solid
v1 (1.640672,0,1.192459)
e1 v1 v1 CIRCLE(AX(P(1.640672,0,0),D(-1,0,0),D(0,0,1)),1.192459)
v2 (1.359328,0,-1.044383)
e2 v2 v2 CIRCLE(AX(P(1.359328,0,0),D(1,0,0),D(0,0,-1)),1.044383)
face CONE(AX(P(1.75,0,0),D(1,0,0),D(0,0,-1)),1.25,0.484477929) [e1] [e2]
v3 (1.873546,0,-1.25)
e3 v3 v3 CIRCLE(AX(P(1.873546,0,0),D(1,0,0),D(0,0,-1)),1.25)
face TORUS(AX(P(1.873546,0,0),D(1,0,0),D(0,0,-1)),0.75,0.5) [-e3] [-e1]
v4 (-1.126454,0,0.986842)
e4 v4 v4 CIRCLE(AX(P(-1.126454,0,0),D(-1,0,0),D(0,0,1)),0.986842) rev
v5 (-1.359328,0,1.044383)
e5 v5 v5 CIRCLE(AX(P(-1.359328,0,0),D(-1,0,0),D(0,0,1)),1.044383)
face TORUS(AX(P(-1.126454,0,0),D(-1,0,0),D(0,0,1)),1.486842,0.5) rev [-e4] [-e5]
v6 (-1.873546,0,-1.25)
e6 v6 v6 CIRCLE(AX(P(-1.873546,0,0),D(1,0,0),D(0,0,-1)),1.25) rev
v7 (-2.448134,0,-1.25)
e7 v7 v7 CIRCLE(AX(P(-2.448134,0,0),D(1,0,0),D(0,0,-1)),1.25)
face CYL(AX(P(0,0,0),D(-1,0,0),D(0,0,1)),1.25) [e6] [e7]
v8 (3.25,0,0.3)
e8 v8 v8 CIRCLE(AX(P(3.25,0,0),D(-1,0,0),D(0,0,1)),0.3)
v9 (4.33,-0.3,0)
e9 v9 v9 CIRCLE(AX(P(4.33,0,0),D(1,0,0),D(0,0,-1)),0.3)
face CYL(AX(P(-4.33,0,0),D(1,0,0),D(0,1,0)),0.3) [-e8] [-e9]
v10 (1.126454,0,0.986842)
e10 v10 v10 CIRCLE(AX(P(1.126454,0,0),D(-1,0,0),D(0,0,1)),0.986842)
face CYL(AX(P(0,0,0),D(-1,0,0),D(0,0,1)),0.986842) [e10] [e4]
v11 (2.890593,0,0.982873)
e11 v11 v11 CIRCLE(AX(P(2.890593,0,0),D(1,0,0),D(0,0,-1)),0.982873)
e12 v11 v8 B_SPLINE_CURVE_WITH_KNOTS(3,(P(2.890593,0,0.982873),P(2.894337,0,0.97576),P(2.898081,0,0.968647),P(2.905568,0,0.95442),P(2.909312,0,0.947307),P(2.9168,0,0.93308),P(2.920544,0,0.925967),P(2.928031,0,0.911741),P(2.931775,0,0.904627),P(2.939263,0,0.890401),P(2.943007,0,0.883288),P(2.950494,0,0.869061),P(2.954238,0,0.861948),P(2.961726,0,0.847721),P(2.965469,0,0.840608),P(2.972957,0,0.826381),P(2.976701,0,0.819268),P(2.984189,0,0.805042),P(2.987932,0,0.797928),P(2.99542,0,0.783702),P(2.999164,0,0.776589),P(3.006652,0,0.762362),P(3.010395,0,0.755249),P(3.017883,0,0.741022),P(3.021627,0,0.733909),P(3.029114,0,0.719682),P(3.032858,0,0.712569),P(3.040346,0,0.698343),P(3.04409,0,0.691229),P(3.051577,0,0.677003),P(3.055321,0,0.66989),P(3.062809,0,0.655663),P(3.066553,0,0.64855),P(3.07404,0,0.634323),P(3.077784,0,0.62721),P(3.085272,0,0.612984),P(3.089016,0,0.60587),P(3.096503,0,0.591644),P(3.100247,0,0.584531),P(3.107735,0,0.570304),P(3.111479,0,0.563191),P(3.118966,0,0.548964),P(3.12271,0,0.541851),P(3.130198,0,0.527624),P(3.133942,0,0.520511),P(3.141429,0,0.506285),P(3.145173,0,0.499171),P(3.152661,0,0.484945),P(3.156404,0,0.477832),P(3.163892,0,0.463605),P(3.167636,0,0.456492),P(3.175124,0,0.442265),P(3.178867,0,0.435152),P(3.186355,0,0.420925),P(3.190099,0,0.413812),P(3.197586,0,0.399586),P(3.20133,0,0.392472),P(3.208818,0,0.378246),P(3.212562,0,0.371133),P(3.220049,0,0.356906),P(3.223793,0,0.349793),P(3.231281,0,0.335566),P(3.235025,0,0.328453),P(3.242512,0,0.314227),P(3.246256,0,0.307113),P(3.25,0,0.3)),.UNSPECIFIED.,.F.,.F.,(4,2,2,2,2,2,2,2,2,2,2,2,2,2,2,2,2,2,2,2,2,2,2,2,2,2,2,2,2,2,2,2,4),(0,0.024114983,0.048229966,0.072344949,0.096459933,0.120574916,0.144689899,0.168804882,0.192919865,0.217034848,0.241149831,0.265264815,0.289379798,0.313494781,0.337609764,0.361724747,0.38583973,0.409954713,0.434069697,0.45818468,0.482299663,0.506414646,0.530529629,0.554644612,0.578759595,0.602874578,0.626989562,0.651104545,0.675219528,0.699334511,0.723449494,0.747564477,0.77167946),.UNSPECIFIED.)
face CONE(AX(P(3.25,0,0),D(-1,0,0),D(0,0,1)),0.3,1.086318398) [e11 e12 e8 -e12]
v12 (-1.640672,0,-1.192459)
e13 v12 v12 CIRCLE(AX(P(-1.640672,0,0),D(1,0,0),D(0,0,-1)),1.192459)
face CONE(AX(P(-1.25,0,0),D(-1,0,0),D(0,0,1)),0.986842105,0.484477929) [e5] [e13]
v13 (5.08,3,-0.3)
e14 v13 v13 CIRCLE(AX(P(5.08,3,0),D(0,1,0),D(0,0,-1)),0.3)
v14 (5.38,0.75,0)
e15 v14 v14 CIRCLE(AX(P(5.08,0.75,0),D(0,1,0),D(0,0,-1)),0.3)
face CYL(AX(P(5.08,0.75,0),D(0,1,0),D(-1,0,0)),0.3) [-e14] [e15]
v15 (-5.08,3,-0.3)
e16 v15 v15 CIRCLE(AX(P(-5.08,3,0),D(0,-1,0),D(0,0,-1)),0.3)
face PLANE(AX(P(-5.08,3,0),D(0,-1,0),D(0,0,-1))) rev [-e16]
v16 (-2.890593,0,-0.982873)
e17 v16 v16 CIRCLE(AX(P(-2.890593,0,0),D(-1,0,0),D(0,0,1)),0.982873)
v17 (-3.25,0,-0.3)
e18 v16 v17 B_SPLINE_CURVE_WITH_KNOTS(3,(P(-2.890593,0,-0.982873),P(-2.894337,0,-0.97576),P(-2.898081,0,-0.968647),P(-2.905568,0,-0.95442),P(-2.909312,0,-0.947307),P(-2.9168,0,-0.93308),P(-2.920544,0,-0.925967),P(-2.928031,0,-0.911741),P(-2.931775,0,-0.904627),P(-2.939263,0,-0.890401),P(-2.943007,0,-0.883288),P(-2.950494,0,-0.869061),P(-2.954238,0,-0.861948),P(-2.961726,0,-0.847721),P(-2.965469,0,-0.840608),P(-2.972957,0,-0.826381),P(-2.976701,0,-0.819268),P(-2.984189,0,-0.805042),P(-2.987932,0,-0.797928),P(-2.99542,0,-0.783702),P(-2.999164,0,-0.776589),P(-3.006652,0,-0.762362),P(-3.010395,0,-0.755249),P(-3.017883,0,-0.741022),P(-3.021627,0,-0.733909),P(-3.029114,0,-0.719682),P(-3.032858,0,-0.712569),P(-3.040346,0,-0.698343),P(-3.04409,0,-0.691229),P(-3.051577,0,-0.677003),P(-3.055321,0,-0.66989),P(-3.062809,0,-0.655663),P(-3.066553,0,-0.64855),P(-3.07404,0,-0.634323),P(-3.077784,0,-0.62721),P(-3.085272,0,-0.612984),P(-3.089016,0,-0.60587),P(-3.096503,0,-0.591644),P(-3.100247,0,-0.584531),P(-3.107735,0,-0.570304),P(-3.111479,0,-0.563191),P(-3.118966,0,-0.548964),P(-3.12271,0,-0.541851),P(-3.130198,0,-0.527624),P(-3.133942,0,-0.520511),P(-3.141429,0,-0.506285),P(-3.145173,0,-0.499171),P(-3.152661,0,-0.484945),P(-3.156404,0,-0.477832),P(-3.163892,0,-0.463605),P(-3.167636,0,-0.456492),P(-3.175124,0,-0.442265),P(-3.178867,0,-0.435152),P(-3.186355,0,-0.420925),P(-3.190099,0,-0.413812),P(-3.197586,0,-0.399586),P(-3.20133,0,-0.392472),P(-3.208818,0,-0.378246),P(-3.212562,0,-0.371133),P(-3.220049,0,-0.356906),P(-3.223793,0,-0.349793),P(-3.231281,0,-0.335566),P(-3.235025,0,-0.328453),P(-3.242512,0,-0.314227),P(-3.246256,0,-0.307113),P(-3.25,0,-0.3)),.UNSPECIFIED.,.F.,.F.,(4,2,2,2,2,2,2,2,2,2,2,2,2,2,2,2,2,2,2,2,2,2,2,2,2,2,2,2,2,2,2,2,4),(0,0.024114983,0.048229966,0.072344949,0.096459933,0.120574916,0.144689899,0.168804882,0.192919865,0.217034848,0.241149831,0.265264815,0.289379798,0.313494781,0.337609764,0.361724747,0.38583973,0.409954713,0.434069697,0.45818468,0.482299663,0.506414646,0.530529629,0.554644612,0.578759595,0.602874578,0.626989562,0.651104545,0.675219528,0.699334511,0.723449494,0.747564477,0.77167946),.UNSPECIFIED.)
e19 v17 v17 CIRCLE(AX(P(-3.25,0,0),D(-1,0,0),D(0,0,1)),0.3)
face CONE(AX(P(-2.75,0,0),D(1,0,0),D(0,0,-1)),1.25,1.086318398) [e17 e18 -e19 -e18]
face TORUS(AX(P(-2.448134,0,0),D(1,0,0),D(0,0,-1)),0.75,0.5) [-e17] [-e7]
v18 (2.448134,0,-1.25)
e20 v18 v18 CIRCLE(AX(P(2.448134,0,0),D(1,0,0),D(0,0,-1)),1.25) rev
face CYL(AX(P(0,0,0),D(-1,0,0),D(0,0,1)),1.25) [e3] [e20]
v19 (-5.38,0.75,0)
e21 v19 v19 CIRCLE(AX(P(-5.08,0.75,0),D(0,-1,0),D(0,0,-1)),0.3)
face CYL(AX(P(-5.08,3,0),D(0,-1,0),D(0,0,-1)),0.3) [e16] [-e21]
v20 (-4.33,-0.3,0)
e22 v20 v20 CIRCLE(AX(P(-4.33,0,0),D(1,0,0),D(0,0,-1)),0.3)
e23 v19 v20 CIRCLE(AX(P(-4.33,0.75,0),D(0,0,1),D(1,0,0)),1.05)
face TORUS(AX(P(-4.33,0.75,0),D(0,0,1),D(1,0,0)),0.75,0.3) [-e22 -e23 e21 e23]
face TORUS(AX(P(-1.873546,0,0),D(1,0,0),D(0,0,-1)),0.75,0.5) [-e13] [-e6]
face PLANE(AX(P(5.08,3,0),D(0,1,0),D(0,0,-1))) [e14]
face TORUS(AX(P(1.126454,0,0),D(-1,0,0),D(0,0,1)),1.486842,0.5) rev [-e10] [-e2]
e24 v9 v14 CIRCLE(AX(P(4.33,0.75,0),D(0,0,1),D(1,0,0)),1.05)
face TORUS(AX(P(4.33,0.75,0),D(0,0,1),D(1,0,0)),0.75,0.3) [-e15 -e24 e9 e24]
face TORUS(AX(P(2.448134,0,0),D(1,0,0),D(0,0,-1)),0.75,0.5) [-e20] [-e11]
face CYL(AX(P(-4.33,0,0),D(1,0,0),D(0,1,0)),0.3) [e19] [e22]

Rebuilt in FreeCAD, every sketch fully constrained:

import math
import FreeCAD as App
import Part
import Sketcher

V = App.Vector


def edges_at(feature, points):
    """Names of the edges that pass closest to the given points."""
    edges = feature.Shape.Edges
    near = lambda p: min(range(len(edges)), key=lambda i: edges[i].distToShape(Part.Vertex(*p))[0])
    return sorted({f"Edge{near(p) + 1}" for p in points})

doc = App.newDocument("Part")
body = doc.addObject("PartDesign::Body", "Body")

# Sketch on XY plane
sketch1 = doc.addObject("Sketcher::SketchObject", "Sketch")
body.addObject(sketch1)
sketch1.AttachmentSupport = (doc.XY_Plane, [""])
sketch1.MapMode = "FlatFace"
sketch1.addGeometry(Part.LineSegment(V(3.25, 0, 0), V(3.25, 0.3, 0)), False)
sketch1.addGeometry(Part.LineSegment(V(3.25, 0.3, 0), V(2.75, 1.25, 0)), False)
sketch1.addGeometry(Part.LineSegment(V(2.75, 1.25, 0), V(1.75, 1.25, 0)), False)
sketch1.addGeometry(Part.LineSegment(V(1.75, 1.25, 0), V(1.25, 0.99, 0)), False)
sketch1.addGeometry(Part.LineSegment(V(1.25, 0.99, 0), V(-1.25, 0.99, 0)), False)
sketch1.addGeometry(Part.LineSegment(V(-1.25, 0.99, 0), V(-1.75, 1.25, 0)), False)
sketch1.addGeometry(Part.LineSegment(V(-1.75, 1.25, 0), V(-2.75, 1.25, 0)), False)
sketch1.addGeometry(Part.LineSegment(V(-2.75, 1.25, 0), V(-3.25, 0.3, 0)), False)
sketch1.addGeometry(Part.LineSegment(V(-3.25, 0.3, 0), V(-3.25, 0, 0)), False)
sketch1.addGeometry(Part.LineSegment(V(-3.25, 0, 0), V(3.25, 0, 0)), False)
sketch1.addConstraint(Sketcher.Constraint("Coincident", 0, 2, 1, 1))
sketch1.addConstraint(Sketcher.Constraint("Coincident", 1, 2, 2, 1))
sketch1.addConstraint(Sketcher.Constraint("Coincident", 2, 2, 3, 1))
sketch1.addConstraint(Sketcher.Constraint("Coincident", 3, 2, 4, 1))
sketch1.addConstraint(Sketcher.Constraint("Coincident", 4, 2, 5, 1))
sketch1.addConstraint(Sketcher.Constraint("Coincident", 5, 2, 6, 1))
sketch1.addConstraint(Sketcher.Constraint("Coincident", 6, 2, 7, 1))
sketch1.addConstraint(Sketcher.Constraint("Coincident", 7, 2, 8, 1))
sketch1.addConstraint(Sketcher.Constraint("Coincident", 8, 2, 9, 1))
sketch1.addConstraint(Sketcher.Constraint("Coincident", 9, 2, 0, 1))
sketch1.addConstraint(Sketcher.Constraint("Vertical", 0))
sketch1.addConstraint(Sketcher.Constraint("Horizontal", 2))
sketch1.addConstraint(Sketcher.Constraint("Horizontal", 4))
sketch1.addConstraint(Sketcher.Constraint("Horizontal", 6))
sketch1.addConstraint(Sketcher.Constraint("Vertical", 8))
sketch1.addConstraint(Sketcher.Constraint("Horizontal", 9))
sketch1.addConstraint(Sketcher.Constraint("Symmetric", 8, 2, 9, 2, -1, 1))
sketch1.addConstraint(Sketcher.Constraint("Symmetric", 2, 2, 5, 2, -2))
sketch1.addConstraint(Sketcher.Constraint("Perpendicular", 1, 3))
sketch1.addConstraint(Sketcher.Constraint("Perpendicular", 5, 7))
sketch1.addConstraint(Sketcher.Constraint("Horizontal", 0, 2, 7, 2))
sketch1.addConstraint(Sketcher.Constraint("Equal", 2, 6))
sketch1.addConstraint(Sketcher.Constraint("DistanceX", 2, 2, 2, 1, 1.0))
sketch1.addConstraint(Sketcher.Constraint("DistanceX", 4, 2, 4, 1, 2.5))
sketch1.addConstraint(Sketcher.Constraint("DistanceX", 9, 1, 9, 2, 6.5))
sketch1.addConstraint(Sketcher.Constraint("DistanceY", 0, 1, 0, 2, 0.3))
sketch1.addConstraint(Sketcher.Constraint("DistanceX", 4, 2, 2, 2, 3.0))
sketch1.addConstraint(Sketcher.Constraint("DistanceY", -1, 1, 1, 2, 1.25))
revolution = doc.addObject("PartDesign::Revolution", "Revolution")
body.addObject(revolution)
revolution.Profile = sketch1
revolution.ReferenceAxis = (sketch1, ["H_Axis"])
revolution.Angle = 360
doc.recompute()

fillet = doc.addObject("PartDesign::Fillet", "Fillet")
body.addObject(fillet)
fillet.Base = (revolution, edges_at(revolution, [
    (1.75, 0, -1.25),
    (2.75, 0, -1.25),
    (-2.75, 0, -1.25),
    (-1.75, 0, -1.25),
    (-1.25, 0, -0.987),
    (1.25, 0, -0.987),
]))
fillet.Radius = 0.5

# Sketch on YZ plane
sketch2 = doc.addObject("Sketcher::SketchObject", "Sketch001")
body.addObject(sketch2)
sketch2.AttachmentSupport = (doc.YZ_Plane, [""])
sketch2.MapMode = "FlatFace"
sketch2.AttachmentOffset = App.Placement(V(0, 0, 3.25), App.Rotation())
sketch2.addGeometry(Part.Circle(V(0, 0, 0), V(0, 0, 1), 0.3), False)
sketch2.addConstraint(Sketcher.Constraint("Coincident", 0, 3, -1, 1))
sketch2.addConstraint(Sketcher.Constraint("Diameter", 0, 0.6))

# Sketch on XY plane
sketch3 = doc.addObject("Sketcher::SketchObject", "Sketch002")
body.addObject(sketch3)
sketch3.AttachmentSupport = (doc.XY_Plane, [""])
sketch3.MapMode = "FlatFace"
sketch3.addGeometry(Part.LineSegment(V(5.1, 3, 0), V(5.1, 0.8, 0)), False)
sketch3.addGeometry(Part.ArcOfCircle(Part.Circle(V(4.3, 0.8, 0), V(0, 0, 1), 0.8), math.radians(-90), math.radians(0)), False)
sketch3.addGeometry(Part.LineSegment(V(4.3, 0, 0), V(-4.3, 0, 0)), False)
sketch3.addGeometry(Part.ArcOfCircle(Part.Circle(V(-4.3, 0.8, 0), V(0, 0, 1), 0.8), math.radians(180), math.radians(270)), False)
sketch3.addGeometry(Part.LineSegment(V(-5.1, 0.8, 0), V(-5.1, 3, 0)), False)
sketch3.addConstraint(Sketcher.Constraint("Tangent", 0, 2, 1, 2))
sketch3.addConstraint(Sketcher.Constraint("Tangent", 1, 1, 2, 1))
sketch3.addConstraint(Sketcher.Constraint("Tangent", 2, 2, 3, 2))
sketch3.addConstraint(Sketcher.Constraint("Tangent", 3, 1, 4, 1))
sketch3.addConstraint(Sketcher.Constraint("Vertical", 0))
sketch3.addConstraint(Sketcher.Constraint("Horizontal", 2))
sketch3.addConstraint(Sketcher.Constraint("Vertical", 4))
sketch3.addConstraint(Sketcher.Constraint("Equal", 1, 3))
sketch3.addConstraint(Sketcher.Constraint("Symmetric", 1, 1, 2, 2, -1, 1))
sketch3.addConstraint(Sketcher.Constraint("Horizontal", 0, 1, 4, 2))
sketch3.addConstraint(Sketcher.Constraint("Radius", 1, 0.75))
sketch3.addConstraint(Sketcher.Constraint("DistanceY", -1, 1, 0, 1, 3.0))
sketch3.addConstraint(Sketcher.Constraint("DistanceX", 2, 2, 2, 1, 8.66))
doc.recompute()

additivepipe = doc.addObject("PartDesign::AdditivePipe", "AdditivePipe")
body.addObject(additivepipe)
additivepipe.Profile = sketch2
additivepipe.Spine = (sketch3, ["Edge1", "Edge2", "Edge3", "Edge4", "Edge5"])

doc.recompute()
